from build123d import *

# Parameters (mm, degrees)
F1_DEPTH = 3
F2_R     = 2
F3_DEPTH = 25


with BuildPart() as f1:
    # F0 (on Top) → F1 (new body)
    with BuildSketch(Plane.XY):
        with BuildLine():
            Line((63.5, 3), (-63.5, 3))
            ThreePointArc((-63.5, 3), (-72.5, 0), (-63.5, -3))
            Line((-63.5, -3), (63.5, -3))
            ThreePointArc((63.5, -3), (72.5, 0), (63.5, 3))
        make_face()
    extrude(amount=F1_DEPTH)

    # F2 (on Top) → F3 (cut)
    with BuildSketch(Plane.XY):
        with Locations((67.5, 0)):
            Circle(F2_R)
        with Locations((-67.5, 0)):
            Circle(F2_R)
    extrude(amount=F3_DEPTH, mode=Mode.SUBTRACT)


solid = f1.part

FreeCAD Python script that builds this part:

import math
import FreeCAD as App
import Part
import Sketcher

doc = App.newDocument("Part")
body = doc.addObject("PartDesign::Body", "Body")

# Sketch on XY plane
sketch1 = body.newObject("Sketcher::SketchObject", "Sketch")
sketch1.AttachmentSupport = (doc.getObject("XY_Plane"), [""])
sketch1.MapMode = "FlatFace"
sketch1.addGeometry([
    Part.LineSegment(App.Vector(64, 3, 0), App.Vector(-64, 3, 0)),
    Part.ArcOfCircle(Part.Circle(App.Vector(-68, 0, 0), App.Vector(0, 0, 1), 5), math.radians(37), math.radians(323)),
    Part.LineSegment(App.Vector(-64, -3, 0), App.Vector(64, -3, 0)),
    Part.ArcOfCircle(Part.Circle(App.Vector(68, 0, 0), App.Vector(0, 0, 1), 5), math.radians(-143), math.radians(143)),
], False)
sketch1.addConstraint([
    Sketcher.Constraint("Coincident", 0, 2, 1, 1),
    Sketcher.Constraint("Coincident", 1, 2, 2, 1),
    Sketcher.Constraint("Coincident", 2, 2, 3, 1),
    Sketcher.Constraint("Coincident", 3, 2, 0, 1),
    Sketcher.Constraint("Horizontal", 0),
    Sketcher.Constraint("Horizontal", 2),
    Sketcher.Constraint("Equal", 1, 3),
    Sketcher.Constraint("Symmetric", 1, 3, 3, 3, -1, 1),
    Sketcher.Constraint("Symmetric", 0, 2, 1, 2, -1),
    Sketcher.Constraint("Radius", 1, 5.0),
    Sketcher.Constraint("DistanceX", 0, 2, 0, 1, 127.0),
    Sketcher.Constraint("DistanceY", -1, 1, 0, 2, 3.0),
])
pad1 = body.newObject("PartDesign::Pad", "Pad")
pad1.Profile = sketch1
pad1.Length = 3

# Sketch on XY plane
sketch2 = body.newObject("Sketcher::SketchObject", "Sketch001")
sketch2.AttachmentSupport = (doc.getObject("XY_Plane"), [""])
sketch2.MapMode = "FlatFace"
sketch2.addGeometry([
    Part.Circle(App.Vector(67.5, 0, 0), App.Vector(0, 0, 1), 2),
    Part.Circle(App.Vector(-67.5, 0, 0), App.Vector(0, 0, 1), 2),
], False)
sketch2.addConstraint([
    Sketcher.Constraint("Equal", 0, 1),
    Sketcher.Constraint("Symmetric", 0, 3, 1, 3, -1, 1),
    Sketcher.Constraint("PointOnObject", 0, 3, -1),
    Sketcher.Constraint("Diameter", 0, 4.0),
    Sketcher.Constraint("DistanceX", 1, 3, 0, 3, 135.0),
])
pocket1 = body.newObject("PartDesign::Pocket", "Pocket")
pocket1.Profile = sketch2
pocket1.Length = 25
pocket1.Reversed = True

doc.recompute()
